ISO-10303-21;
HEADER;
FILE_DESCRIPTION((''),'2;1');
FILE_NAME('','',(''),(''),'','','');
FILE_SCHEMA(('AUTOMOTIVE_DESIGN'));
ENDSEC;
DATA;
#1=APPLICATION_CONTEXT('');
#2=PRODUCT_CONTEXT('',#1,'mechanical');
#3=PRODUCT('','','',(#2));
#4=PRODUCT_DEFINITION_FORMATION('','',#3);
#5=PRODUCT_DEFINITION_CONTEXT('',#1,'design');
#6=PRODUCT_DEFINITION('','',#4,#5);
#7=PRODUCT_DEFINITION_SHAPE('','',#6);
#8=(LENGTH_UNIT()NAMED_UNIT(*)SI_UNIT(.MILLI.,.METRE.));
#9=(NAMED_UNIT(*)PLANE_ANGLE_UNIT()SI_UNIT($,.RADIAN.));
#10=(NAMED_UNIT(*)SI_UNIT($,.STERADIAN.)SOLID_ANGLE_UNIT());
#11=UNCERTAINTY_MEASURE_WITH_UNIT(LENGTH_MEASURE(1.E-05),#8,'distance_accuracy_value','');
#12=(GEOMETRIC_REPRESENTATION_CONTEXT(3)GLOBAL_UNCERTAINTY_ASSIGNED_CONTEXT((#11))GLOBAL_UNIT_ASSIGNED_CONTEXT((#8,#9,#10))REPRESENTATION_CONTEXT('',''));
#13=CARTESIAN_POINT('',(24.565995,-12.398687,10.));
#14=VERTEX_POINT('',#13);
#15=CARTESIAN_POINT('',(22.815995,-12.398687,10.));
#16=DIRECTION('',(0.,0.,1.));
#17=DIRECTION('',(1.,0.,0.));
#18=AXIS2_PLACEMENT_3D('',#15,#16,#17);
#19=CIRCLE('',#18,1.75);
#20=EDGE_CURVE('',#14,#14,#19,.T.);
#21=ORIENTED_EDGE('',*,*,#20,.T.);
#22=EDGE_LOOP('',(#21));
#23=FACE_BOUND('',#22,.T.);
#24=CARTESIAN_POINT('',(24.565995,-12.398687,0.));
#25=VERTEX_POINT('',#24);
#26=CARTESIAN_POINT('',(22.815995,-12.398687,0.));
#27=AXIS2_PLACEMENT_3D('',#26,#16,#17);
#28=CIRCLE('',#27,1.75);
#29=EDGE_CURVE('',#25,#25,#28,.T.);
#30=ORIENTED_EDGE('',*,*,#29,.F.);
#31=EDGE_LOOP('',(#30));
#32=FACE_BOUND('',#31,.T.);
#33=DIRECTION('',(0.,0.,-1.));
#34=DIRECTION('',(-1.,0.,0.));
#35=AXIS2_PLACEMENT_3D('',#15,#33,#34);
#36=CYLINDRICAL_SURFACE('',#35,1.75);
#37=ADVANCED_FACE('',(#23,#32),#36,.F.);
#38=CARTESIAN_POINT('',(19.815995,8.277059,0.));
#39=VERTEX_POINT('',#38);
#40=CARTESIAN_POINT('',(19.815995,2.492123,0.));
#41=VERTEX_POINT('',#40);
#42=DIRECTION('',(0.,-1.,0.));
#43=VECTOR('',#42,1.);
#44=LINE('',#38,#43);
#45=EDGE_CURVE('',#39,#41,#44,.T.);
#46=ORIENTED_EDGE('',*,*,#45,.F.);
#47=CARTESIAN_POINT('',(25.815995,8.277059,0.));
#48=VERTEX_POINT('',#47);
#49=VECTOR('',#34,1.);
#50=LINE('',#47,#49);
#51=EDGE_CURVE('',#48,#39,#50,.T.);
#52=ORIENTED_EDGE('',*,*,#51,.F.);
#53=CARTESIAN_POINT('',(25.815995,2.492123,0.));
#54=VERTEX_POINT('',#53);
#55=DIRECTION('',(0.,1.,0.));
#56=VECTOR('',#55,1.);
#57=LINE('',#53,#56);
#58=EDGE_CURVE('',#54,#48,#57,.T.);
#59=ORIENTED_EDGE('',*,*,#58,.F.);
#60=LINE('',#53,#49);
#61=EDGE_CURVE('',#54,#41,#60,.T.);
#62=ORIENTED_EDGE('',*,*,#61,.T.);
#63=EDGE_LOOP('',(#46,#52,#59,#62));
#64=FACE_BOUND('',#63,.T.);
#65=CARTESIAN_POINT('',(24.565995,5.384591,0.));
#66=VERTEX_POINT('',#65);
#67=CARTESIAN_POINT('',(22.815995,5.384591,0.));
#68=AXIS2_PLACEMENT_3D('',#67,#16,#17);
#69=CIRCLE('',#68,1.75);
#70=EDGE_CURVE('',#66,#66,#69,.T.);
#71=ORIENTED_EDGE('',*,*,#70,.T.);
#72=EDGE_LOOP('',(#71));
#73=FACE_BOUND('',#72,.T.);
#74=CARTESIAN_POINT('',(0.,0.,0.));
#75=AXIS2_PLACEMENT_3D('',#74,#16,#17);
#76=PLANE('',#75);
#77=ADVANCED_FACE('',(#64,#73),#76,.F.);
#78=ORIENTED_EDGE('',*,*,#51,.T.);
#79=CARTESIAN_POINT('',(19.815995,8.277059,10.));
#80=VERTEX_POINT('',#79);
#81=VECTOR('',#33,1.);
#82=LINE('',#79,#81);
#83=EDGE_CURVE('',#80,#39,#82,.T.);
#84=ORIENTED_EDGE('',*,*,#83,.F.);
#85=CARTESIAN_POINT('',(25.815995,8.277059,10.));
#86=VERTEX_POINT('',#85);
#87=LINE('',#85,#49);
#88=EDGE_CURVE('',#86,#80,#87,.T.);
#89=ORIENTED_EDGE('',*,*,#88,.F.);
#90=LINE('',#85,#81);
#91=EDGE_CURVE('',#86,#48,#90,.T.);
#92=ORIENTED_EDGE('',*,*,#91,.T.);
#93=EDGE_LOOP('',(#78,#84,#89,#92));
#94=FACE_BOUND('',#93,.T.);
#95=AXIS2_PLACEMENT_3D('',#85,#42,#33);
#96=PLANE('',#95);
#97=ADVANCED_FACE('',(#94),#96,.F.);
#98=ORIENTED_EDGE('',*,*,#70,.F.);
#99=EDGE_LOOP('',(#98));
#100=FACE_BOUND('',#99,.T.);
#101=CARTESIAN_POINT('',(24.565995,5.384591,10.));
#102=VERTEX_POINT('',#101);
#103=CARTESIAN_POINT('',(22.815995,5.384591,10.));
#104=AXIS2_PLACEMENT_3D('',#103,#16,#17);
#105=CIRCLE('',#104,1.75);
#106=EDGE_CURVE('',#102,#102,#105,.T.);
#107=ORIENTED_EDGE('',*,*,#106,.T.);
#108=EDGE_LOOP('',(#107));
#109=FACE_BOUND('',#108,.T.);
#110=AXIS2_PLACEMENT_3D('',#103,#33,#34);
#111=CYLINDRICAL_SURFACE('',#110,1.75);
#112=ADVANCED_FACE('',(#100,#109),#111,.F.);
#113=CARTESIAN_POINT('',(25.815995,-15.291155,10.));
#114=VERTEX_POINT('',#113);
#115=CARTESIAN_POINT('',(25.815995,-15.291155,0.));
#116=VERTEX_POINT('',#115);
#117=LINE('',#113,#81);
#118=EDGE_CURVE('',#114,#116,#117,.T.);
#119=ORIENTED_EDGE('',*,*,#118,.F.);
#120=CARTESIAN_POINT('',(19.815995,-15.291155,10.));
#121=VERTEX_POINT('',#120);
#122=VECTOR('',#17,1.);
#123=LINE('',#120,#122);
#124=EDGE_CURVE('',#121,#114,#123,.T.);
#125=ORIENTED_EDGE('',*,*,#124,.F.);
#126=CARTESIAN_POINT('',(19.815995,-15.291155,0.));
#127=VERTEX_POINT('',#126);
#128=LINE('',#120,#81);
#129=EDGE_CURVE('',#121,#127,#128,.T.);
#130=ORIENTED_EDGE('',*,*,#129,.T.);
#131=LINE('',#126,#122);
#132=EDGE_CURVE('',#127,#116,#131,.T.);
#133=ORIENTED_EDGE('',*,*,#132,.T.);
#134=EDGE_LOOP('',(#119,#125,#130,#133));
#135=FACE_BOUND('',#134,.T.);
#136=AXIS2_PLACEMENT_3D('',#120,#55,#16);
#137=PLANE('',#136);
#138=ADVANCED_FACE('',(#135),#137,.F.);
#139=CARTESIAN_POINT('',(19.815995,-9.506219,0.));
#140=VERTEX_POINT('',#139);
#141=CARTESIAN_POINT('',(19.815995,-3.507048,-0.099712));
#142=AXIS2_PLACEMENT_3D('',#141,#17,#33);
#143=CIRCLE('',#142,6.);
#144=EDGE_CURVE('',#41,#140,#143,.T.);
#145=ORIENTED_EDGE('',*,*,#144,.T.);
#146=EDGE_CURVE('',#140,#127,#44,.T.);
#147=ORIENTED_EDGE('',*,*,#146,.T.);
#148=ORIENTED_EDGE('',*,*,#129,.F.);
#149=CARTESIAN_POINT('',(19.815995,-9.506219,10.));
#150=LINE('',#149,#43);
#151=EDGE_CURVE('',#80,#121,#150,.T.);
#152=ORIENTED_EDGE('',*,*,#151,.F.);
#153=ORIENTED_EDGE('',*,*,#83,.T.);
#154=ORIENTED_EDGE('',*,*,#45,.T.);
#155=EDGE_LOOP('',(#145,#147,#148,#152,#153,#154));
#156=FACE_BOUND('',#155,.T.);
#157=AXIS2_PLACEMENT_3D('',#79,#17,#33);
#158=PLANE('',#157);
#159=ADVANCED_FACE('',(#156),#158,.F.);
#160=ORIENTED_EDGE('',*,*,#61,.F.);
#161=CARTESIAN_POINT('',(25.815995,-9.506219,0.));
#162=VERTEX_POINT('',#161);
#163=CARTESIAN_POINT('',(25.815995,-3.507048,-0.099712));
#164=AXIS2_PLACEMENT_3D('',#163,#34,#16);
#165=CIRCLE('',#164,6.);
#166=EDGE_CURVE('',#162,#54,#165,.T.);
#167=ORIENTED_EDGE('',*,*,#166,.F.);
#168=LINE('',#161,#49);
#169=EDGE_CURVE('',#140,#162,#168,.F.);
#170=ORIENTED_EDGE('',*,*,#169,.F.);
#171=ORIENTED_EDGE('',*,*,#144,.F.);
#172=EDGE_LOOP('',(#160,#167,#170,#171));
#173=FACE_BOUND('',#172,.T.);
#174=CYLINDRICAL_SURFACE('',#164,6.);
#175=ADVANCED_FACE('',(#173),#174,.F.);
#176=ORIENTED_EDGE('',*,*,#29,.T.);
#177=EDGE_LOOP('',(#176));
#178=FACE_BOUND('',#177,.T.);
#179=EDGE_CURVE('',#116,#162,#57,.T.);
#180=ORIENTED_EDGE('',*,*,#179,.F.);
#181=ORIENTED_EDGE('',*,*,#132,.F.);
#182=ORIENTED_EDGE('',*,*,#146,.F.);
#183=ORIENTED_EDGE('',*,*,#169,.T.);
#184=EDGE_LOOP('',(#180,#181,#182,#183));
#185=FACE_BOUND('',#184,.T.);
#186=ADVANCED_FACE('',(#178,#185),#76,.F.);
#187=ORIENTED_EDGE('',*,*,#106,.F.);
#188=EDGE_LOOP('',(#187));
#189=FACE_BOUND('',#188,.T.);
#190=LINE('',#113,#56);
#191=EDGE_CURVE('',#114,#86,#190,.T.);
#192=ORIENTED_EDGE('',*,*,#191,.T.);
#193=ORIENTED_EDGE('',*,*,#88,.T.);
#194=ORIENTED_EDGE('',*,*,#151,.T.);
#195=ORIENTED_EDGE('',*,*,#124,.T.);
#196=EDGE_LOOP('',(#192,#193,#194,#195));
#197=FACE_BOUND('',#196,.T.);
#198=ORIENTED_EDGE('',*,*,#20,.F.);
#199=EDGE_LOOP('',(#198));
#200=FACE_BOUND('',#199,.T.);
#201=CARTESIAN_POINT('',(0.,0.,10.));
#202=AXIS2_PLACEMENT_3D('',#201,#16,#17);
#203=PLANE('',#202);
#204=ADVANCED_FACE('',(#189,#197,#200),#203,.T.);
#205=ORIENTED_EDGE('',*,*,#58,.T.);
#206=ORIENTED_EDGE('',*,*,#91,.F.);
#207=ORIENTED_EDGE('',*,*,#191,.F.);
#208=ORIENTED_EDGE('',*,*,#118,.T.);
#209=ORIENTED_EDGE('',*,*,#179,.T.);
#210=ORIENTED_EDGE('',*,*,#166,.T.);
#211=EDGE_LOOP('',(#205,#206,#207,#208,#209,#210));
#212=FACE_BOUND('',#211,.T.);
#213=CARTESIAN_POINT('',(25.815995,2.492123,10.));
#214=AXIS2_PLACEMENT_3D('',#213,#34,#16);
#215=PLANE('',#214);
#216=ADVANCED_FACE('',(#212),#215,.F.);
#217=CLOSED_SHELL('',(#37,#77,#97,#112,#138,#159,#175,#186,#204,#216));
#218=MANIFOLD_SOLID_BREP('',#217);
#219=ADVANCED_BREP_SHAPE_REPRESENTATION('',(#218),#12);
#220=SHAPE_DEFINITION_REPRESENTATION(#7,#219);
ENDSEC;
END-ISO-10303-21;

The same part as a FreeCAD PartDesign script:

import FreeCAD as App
import Part
import Sketcher
from FreeCAD import Vector
Q = App.Units.Quantity

doc = App.newDocument("Part")
body = doc.addObject("PartDesign::Body", "Body")

# Sketch on XY plane
sketch1 = body.newObject("Sketcher::SketchObject", "Sketch")
sketch1.AttachmentSupport = (doc.getObject("XY_Plane"), [""])
sketch1.MapMode = "FlatFace"
sketch1.addGeometry([
    Part.LineSegment(Vector(25.8, 8.3, 0), Vector(19.8, 8.3, 0)),  # 0
    Part.LineSegment(Vector(19.8, 8.3, 0), Vector(19.8, -15.3, 0)),  # 1
    Part.LineSegment(Vector(19.8, -15.3, 0), Vector(25.8, -15.3, 0)),  # 2
    Part.LineSegment(Vector(25.8, -15.3, 0), Vector(25.8, 8.3, 0)),  # 3
    Part.Circle(Vector(22.8, -12.4, 0), Vector(0, 0, 1), 1.8),  # 4
    Part.Circle(Vector(22.8, 5.4, 0), Vector(0, 0, 1), 1.8),  # 5
], False)
sketch1.addConstraint([
    Sketcher.Constraint("Coincident", 0, 2, 1, 1),
    Sketcher.Constraint("Coincident", 1, 2, 2, 1),
    Sketcher.Constraint("Coincident", 2, 2, 3, 1),
    Sketcher.Constraint("Coincident", 3, 2, 0, 1),
    Sketcher.Constraint("Horizontal", 0),
    Sketcher.Constraint("Vertical", 1),
    Sketcher.Constraint("Horizontal", 2),
    Sketcher.Constraint("Vertical", 3),
    Sketcher.Constraint("Equal", 4, 5),
    Sketcher.Constraint("Vertical", 4, 3, 5, 3),
    Sketcher.Constraint("Diameter", 4, Q("3.5 mm")),
    Sketcher.Constraint("DistanceX", 0, 2, 0, 1, Q("6 mm")),
    Sketcher.Constraint("DistanceX", 0, 2, 5, 3, Q("3 mm")),
    Sketcher.Constraint("DistanceY", 1, 2, 1, 1, Q("23.568213 mm")),
    Sketcher.Constraint("DistanceY", -1, 1, 5, 3, Q("5.384591 mm")),
    Sketcher.Constraint("DistanceY", -1, 1, 0, 2, Q("8.277059 mm")),
    Sketcher.Constraint("DistanceY", 4, 3, 5, 3, Q("17.783278 mm")),
    Sketcher.Constraint("DistanceX", -1, 1, 4, 3, Q("22.815995 mm")),
])
pad1 = body.newObject("PartDesign::Pad", "Pad")
pad1.Profile = sketch1
pad1.Length = 10

# Sketch on YZ plane
sketch2 = body.newObject("Sketcher::SketchObject", "Sketch001")
sketch2.AttachmentSupport = (doc.getObject("YZ_Plane"), [""])
sketch2.MapMode = "FlatFace"
sketch2.AttachmentOffset = App.Placement(Vector(0, 0, 19.815995), App.Rotation())
sketch2.addGeometry(Part.Circle(Vector(-4, 0, 0), Vector(0, 0, 1), 6), False)
sketch2.addConstraint([
    Sketcher.Constraint("Diameter", 0, Q("12 mm")),
    Sketcher.Constraint("DistanceX", 0, 3, -1, 1, Q("3.507048 mm")),
    Sketcher.Constraint("DistanceY", 0, 3, -1, 1, Q("0.099712 mm")),
])
pocket1 = body.newObject("PartDesign::Pocket", "Pocket")
pocket1.Profile = sketch2
pocket1.Length = 6
pocket1.Reversed = True

doc.recompute()
